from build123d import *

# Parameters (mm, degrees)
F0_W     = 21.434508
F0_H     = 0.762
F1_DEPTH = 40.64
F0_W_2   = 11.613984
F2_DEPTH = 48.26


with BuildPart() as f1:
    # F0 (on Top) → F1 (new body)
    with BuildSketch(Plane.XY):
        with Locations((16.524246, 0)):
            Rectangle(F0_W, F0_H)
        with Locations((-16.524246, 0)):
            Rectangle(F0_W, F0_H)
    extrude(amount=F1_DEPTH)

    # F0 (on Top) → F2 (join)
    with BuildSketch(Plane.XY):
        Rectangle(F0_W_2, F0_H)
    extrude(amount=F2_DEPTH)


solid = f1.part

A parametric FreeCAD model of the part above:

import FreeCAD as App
import Part
import Sketcher
from FreeCAD import Vector
Q = App.Units.Quantity


def add_polygon(sketch, points):
    """Adds a closed chain of lines whose ends are joined by coincident constraints."""
    first, n = sketch.GeometryCount, len(points)
    for a, b in zip(points, points[1:] + points[:1]):
        sketch.addGeometry(Part.LineSegment(App.Vector(*a, 0), App.Vector(*b, 0)), False)
    for i in range(n):
        sketch.addConstraint(Sketcher.Constraint("Coincident", first + i, 2, first + (i + 1) % n, 1))

doc = App.newDocument("Part")
params = doc.addObject("Spreadsheet::Sheet", "Params")
for row, (alias, value) in enumerate([
    ("sketch1_height", "0.03 in"),
    ("pad1_length", "1.6 in"),
    ("sketch2_height", "0.03 in"),
    ("pad2_length", "1.9 in"),
], start=1):
    params.set(f"A{row}", alias)
    params.set(f"B{row}", "=" + value)
    params.setAlias(f"B{row}", alias)

body = doc.addObject("PartDesign::Body", "Body")
body.AllowCompound = True

sketch1 = doc.addObject("Sketcher::SketchObject", "Sketch")
body.addObject(sketch1)
sketch1.AttachmentSupport = (doc.XY_Plane, [""])
sketch1.MapMode = "FlatFace"
add_polygon(sketch1, [(5.8, 0.4), (5.8, -0.4), (27.2, -0.4), (27.2, 0.4)])
add_polygon(sketch1, [(-27.2, 0.4), (-27.2, -0.4), (-5.8, -0.4), (-5.8, 0.4)])
sketch1.addConstraint([
    Sketcher.Constraint("Vertical", 0),
    Sketcher.Constraint("Horizontal", 1),
    Sketcher.Constraint("Vertical", 2),
    Sketcher.Constraint("Horizontal", 3),
    Sketcher.Constraint("Vertical", 4),
    Sketcher.Constraint("Horizontal", 5),
    Sketcher.Constraint("Vertical", 6),
    Sketcher.Constraint("Horizontal", 7),
    Sketcher.Constraint("Symmetric", 2, 2, 4, 2, -1, 1),
    Sketcher.Constraint("Symmetric", 0, 2, 6, 2, -1, 1),
    Sketcher.Constraint("Horizontal", 1, 2, 4, 2),
    Sketcher.Constraint("DistanceY", 0, 2, 0, 1, Q("0.03 in")),
    Sketcher.Constraint("DistanceX", 4, 2, 1, 2, Q("2.145 in")),
    Sketcher.Constraint("DistanceX", 1, 1, 1, 2, 21.434508),
])
sketch1.setExpression("Constraints[19]", "Params.sketch1_height")
pad1 = doc.addObject("PartDesign::Pad", "Pad")
body.addObject(pad1)
pad1.Profile = sketch1
pad1.setExpression("Length", "Params.pad1_length")

sketch2 = doc.addObject("Sketcher::SketchObject", "Sketch001")
body.addObject(sketch2)
sketch2.AttachmentSupport = (doc.XY_Plane, [""])
sketch2.MapMode = "FlatFace"
add_polygon(sketch2, [(-5.8, 0.4), (-5.8, -0.4), (5.8, -0.4), (5.8, 0.4)])
sketch2.addConstraint([
    Sketcher.Constraint("Vertical", 0),
    Sketcher.Constraint("Horizontal", 1),
    Sketcher.Constraint("Vertical", 2),
    Sketcher.Constraint("Horizontal", 3),
    Sketcher.Constraint("Symmetric", 0, 2, 2, 2, -1, 1),
    Sketcher.Constraint("DistanceY", 0, 2, 0, 1, Q("0.03 in")),
    Sketcher.Constraint("DistanceX", 1, 1, 1, 2, 11.613984),
])
sketch2.setExpression("Constraints[9]", "Params.sketch2_height")
pad2 = doc.addObject("PartDesign::Pad", "Pad001")
body.addObject(pad2)
pad2.Profile = sketch2
pad2.setExpression("Length", "Params.pad2_length")

doc.recompute()
